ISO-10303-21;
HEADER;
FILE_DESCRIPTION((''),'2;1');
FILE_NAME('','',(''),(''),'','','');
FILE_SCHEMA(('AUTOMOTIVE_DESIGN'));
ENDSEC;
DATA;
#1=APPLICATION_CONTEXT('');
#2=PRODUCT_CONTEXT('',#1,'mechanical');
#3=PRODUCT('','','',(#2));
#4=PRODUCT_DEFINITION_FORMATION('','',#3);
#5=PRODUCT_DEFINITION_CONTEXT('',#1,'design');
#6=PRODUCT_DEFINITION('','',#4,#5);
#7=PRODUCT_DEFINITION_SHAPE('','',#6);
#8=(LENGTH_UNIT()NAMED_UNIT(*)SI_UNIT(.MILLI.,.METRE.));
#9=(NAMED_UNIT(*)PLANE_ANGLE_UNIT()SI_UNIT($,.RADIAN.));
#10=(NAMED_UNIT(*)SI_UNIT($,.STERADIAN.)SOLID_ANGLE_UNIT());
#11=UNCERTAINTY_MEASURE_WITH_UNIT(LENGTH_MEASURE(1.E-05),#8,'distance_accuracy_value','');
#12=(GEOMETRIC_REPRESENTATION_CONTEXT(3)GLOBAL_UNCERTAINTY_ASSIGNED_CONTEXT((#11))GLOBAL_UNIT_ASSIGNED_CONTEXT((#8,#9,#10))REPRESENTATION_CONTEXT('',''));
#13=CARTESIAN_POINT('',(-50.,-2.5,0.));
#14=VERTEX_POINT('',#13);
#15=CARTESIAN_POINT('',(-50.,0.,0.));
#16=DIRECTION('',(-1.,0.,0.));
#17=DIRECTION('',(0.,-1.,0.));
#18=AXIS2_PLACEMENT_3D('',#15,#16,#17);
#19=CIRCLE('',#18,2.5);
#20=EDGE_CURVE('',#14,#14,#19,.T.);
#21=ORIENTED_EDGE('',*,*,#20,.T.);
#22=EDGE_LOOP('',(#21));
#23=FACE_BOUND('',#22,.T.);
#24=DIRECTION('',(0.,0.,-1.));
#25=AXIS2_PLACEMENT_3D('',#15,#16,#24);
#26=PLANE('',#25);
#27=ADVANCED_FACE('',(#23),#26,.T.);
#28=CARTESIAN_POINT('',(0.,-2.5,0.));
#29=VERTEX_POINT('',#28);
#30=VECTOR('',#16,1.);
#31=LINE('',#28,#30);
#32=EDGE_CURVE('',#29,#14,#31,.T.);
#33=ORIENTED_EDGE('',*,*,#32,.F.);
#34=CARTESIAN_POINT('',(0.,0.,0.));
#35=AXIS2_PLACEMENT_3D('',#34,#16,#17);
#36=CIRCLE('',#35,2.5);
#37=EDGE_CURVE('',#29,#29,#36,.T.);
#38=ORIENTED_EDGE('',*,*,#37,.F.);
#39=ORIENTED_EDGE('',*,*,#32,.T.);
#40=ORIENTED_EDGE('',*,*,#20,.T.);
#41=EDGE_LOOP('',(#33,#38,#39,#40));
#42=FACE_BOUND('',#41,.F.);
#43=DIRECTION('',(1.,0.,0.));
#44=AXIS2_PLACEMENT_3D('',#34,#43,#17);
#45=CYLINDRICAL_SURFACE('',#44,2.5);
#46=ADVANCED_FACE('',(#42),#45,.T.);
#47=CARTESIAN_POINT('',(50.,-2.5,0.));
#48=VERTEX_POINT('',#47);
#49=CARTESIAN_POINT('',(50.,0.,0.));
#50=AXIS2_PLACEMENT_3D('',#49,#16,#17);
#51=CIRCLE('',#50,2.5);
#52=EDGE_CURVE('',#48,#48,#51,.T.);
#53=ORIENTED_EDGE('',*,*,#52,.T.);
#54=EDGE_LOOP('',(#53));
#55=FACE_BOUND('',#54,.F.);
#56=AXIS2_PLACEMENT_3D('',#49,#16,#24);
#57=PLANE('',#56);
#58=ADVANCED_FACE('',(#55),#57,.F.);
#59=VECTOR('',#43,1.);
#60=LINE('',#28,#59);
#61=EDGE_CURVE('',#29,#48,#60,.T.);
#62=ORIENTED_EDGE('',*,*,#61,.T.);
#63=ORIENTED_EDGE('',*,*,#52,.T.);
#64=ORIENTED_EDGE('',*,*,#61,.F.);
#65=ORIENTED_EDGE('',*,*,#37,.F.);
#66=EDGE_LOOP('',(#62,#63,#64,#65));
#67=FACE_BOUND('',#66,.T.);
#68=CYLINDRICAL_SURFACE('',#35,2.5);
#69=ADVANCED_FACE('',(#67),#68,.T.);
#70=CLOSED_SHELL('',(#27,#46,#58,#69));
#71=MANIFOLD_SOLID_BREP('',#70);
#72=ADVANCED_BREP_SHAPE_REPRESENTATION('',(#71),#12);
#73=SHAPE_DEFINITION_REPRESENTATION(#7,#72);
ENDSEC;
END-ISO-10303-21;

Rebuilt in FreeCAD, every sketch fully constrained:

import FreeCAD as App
import Part
import Sketcher

V = App.Vector
Q = App.Units.Quantity

doc = App.newDocument("Part")
body = doc.addObject("PartDesign::Body", "Body")

sketch1 = doc.addObject("Sketcher::SketchObject", "Sketch")
body.addObject(sketch1)
sketch1.AttachmentSupport = (doc.YZ_Plane, [""])
sketch1.MapMode = "FlatFace"
sketch1.addGeometry(Part.Circle(V(0, 0, 0), V(0, 0, 1), 2.5), False)
sketch1.addConstraint([
    Sketcher.Constraint("Coincident", 0, 3, -1, 1),
    Sketcher.Constraint("Diameter", 0, Q("5 mm")),
])
pad1 = doc.addObject("PartDesign::Pad", "Pad")
body.addObject(pad1)
pad1.Profile = sketch1
pad1.Length = 100
pad1.Midplane = True

doc.recompute()
